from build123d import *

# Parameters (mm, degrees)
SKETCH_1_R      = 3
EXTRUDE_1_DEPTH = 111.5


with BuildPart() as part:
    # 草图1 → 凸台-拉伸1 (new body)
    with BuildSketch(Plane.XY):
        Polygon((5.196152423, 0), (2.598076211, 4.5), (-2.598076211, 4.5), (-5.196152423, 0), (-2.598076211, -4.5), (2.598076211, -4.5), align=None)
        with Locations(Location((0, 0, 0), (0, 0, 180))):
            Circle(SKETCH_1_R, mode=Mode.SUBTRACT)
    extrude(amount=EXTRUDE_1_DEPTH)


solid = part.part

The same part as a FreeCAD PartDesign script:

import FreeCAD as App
import Part
import Sketcher
Q = App.Units.Quantity

doc = App.newDocument("Part")
body = doc.addObject("PartDesign::Body", "Body")

sketch1 = body.newObject("Sketcher::SketchObject", "Sketch")
sketch1.AttachmentSupport = (doc.getObject("XY_Plane"), [""])
sketch1.MapMode = "FlatFace"
sketch1.addGeometry(Part.LineSegment(App.Vector(5.2, 0, 0), App.Vector(2.6, 4.5, 0)), False)
sketch1.addGeometry(Part.LineSegment(App.Vector(2.6, 4.5, 0), App.Vector(-2.6, 4.5, 0)), False)
sketch1.addGeometry(Part.LineSegment(App.Vector(-2.6, 4.5, 0), App.Vector(-5.2, 0, 0)), False)
sketch1.addGeometry(Part.LineSegment(App.Vector(-5.2, 0, 0), App.Vector(-2.6, -4.5, 0)), False)
sketch1.addGeometry(Part.LineSegment(App.Vector(-2.6, -4.5, 0), App.Vector(2.6, -4.5, 0)), False)
sketch1.addGeometry(Part.LineSegment(App.Vector(2.6, -4.5, 0), App.Vector(5.2, 0, 0)), False)
sketch1.addGeometry(Part.Circle(App.Vector(0, 0, 0), App.Vector(0, 0, 1), 3), False)
sketch1.addConstraint(Sketcher.Constraint("Coincident", 0, 2, 1, 1))
sketch1.addConstraint(Sketcher.Constraint("Coincident", 1, 2, 2, 1))
sketch1.addConstraint(Sketcher.Constraint("Coincident", 2, 2, 3, 1))
sketch1.addConstraint(Sketcher.Constraint("Coincident", 3, 2, 4, 1))
sketch1.addConstraint(Sketcher.Constraint("Coincident", 4, 2, 5, 1))
sketch1.addConstraint(Sketcher.Constraint("Coincident", 5, 2, 0, 1))
sketch1.addConstraint(Sketcher.Constraint("Horizontal", 1))
sketch1.addConstraint(Sketcher.Constraint("Horizontal", 4))
sketch1.addConstraint(Sketcher.Constraint("Coincident", 6, 3, -1, 1))
sketch1.addConstraint(Sketcher.Constraint("Symmetric", 0, 2, 3, 2, -1, 1))
sketch1.addConstraint(Sketcher.Constraint("Symmetric", 2, 2, 5, 2, -1, 1))
sketch1.addConstraint(Sketcher.Constraint("PointOnObject", 2, 2, -1))
sketch1.addConstraint(Sketcher.Constraint("Parallel", 2, 5))
sketch1.addConstraint(Sketcher.Constraint("Vertical", 1, 2, 3, 2))
sketch1.addConstraint(Sketcher.Constraint("Diameter", 6, 6.0))
sketch1.addConstraint(Sketcher.Constraint("Angle", 0, Q("120 deg")))
sketch1.addConstraint(Sketcher.Constraint("DistanceY", 3, 2, 1, 2, 9.0))
sketch1.addConstraint(Sketcher.Constraint("DistanceX", 1, 2, 1, 1, 5.196152))
pad1 = body.newObject("PartDesign::Pad", "Pad")
pad1.Profile = sketch1
pad1.Length = 111.5

doc.recompute()
